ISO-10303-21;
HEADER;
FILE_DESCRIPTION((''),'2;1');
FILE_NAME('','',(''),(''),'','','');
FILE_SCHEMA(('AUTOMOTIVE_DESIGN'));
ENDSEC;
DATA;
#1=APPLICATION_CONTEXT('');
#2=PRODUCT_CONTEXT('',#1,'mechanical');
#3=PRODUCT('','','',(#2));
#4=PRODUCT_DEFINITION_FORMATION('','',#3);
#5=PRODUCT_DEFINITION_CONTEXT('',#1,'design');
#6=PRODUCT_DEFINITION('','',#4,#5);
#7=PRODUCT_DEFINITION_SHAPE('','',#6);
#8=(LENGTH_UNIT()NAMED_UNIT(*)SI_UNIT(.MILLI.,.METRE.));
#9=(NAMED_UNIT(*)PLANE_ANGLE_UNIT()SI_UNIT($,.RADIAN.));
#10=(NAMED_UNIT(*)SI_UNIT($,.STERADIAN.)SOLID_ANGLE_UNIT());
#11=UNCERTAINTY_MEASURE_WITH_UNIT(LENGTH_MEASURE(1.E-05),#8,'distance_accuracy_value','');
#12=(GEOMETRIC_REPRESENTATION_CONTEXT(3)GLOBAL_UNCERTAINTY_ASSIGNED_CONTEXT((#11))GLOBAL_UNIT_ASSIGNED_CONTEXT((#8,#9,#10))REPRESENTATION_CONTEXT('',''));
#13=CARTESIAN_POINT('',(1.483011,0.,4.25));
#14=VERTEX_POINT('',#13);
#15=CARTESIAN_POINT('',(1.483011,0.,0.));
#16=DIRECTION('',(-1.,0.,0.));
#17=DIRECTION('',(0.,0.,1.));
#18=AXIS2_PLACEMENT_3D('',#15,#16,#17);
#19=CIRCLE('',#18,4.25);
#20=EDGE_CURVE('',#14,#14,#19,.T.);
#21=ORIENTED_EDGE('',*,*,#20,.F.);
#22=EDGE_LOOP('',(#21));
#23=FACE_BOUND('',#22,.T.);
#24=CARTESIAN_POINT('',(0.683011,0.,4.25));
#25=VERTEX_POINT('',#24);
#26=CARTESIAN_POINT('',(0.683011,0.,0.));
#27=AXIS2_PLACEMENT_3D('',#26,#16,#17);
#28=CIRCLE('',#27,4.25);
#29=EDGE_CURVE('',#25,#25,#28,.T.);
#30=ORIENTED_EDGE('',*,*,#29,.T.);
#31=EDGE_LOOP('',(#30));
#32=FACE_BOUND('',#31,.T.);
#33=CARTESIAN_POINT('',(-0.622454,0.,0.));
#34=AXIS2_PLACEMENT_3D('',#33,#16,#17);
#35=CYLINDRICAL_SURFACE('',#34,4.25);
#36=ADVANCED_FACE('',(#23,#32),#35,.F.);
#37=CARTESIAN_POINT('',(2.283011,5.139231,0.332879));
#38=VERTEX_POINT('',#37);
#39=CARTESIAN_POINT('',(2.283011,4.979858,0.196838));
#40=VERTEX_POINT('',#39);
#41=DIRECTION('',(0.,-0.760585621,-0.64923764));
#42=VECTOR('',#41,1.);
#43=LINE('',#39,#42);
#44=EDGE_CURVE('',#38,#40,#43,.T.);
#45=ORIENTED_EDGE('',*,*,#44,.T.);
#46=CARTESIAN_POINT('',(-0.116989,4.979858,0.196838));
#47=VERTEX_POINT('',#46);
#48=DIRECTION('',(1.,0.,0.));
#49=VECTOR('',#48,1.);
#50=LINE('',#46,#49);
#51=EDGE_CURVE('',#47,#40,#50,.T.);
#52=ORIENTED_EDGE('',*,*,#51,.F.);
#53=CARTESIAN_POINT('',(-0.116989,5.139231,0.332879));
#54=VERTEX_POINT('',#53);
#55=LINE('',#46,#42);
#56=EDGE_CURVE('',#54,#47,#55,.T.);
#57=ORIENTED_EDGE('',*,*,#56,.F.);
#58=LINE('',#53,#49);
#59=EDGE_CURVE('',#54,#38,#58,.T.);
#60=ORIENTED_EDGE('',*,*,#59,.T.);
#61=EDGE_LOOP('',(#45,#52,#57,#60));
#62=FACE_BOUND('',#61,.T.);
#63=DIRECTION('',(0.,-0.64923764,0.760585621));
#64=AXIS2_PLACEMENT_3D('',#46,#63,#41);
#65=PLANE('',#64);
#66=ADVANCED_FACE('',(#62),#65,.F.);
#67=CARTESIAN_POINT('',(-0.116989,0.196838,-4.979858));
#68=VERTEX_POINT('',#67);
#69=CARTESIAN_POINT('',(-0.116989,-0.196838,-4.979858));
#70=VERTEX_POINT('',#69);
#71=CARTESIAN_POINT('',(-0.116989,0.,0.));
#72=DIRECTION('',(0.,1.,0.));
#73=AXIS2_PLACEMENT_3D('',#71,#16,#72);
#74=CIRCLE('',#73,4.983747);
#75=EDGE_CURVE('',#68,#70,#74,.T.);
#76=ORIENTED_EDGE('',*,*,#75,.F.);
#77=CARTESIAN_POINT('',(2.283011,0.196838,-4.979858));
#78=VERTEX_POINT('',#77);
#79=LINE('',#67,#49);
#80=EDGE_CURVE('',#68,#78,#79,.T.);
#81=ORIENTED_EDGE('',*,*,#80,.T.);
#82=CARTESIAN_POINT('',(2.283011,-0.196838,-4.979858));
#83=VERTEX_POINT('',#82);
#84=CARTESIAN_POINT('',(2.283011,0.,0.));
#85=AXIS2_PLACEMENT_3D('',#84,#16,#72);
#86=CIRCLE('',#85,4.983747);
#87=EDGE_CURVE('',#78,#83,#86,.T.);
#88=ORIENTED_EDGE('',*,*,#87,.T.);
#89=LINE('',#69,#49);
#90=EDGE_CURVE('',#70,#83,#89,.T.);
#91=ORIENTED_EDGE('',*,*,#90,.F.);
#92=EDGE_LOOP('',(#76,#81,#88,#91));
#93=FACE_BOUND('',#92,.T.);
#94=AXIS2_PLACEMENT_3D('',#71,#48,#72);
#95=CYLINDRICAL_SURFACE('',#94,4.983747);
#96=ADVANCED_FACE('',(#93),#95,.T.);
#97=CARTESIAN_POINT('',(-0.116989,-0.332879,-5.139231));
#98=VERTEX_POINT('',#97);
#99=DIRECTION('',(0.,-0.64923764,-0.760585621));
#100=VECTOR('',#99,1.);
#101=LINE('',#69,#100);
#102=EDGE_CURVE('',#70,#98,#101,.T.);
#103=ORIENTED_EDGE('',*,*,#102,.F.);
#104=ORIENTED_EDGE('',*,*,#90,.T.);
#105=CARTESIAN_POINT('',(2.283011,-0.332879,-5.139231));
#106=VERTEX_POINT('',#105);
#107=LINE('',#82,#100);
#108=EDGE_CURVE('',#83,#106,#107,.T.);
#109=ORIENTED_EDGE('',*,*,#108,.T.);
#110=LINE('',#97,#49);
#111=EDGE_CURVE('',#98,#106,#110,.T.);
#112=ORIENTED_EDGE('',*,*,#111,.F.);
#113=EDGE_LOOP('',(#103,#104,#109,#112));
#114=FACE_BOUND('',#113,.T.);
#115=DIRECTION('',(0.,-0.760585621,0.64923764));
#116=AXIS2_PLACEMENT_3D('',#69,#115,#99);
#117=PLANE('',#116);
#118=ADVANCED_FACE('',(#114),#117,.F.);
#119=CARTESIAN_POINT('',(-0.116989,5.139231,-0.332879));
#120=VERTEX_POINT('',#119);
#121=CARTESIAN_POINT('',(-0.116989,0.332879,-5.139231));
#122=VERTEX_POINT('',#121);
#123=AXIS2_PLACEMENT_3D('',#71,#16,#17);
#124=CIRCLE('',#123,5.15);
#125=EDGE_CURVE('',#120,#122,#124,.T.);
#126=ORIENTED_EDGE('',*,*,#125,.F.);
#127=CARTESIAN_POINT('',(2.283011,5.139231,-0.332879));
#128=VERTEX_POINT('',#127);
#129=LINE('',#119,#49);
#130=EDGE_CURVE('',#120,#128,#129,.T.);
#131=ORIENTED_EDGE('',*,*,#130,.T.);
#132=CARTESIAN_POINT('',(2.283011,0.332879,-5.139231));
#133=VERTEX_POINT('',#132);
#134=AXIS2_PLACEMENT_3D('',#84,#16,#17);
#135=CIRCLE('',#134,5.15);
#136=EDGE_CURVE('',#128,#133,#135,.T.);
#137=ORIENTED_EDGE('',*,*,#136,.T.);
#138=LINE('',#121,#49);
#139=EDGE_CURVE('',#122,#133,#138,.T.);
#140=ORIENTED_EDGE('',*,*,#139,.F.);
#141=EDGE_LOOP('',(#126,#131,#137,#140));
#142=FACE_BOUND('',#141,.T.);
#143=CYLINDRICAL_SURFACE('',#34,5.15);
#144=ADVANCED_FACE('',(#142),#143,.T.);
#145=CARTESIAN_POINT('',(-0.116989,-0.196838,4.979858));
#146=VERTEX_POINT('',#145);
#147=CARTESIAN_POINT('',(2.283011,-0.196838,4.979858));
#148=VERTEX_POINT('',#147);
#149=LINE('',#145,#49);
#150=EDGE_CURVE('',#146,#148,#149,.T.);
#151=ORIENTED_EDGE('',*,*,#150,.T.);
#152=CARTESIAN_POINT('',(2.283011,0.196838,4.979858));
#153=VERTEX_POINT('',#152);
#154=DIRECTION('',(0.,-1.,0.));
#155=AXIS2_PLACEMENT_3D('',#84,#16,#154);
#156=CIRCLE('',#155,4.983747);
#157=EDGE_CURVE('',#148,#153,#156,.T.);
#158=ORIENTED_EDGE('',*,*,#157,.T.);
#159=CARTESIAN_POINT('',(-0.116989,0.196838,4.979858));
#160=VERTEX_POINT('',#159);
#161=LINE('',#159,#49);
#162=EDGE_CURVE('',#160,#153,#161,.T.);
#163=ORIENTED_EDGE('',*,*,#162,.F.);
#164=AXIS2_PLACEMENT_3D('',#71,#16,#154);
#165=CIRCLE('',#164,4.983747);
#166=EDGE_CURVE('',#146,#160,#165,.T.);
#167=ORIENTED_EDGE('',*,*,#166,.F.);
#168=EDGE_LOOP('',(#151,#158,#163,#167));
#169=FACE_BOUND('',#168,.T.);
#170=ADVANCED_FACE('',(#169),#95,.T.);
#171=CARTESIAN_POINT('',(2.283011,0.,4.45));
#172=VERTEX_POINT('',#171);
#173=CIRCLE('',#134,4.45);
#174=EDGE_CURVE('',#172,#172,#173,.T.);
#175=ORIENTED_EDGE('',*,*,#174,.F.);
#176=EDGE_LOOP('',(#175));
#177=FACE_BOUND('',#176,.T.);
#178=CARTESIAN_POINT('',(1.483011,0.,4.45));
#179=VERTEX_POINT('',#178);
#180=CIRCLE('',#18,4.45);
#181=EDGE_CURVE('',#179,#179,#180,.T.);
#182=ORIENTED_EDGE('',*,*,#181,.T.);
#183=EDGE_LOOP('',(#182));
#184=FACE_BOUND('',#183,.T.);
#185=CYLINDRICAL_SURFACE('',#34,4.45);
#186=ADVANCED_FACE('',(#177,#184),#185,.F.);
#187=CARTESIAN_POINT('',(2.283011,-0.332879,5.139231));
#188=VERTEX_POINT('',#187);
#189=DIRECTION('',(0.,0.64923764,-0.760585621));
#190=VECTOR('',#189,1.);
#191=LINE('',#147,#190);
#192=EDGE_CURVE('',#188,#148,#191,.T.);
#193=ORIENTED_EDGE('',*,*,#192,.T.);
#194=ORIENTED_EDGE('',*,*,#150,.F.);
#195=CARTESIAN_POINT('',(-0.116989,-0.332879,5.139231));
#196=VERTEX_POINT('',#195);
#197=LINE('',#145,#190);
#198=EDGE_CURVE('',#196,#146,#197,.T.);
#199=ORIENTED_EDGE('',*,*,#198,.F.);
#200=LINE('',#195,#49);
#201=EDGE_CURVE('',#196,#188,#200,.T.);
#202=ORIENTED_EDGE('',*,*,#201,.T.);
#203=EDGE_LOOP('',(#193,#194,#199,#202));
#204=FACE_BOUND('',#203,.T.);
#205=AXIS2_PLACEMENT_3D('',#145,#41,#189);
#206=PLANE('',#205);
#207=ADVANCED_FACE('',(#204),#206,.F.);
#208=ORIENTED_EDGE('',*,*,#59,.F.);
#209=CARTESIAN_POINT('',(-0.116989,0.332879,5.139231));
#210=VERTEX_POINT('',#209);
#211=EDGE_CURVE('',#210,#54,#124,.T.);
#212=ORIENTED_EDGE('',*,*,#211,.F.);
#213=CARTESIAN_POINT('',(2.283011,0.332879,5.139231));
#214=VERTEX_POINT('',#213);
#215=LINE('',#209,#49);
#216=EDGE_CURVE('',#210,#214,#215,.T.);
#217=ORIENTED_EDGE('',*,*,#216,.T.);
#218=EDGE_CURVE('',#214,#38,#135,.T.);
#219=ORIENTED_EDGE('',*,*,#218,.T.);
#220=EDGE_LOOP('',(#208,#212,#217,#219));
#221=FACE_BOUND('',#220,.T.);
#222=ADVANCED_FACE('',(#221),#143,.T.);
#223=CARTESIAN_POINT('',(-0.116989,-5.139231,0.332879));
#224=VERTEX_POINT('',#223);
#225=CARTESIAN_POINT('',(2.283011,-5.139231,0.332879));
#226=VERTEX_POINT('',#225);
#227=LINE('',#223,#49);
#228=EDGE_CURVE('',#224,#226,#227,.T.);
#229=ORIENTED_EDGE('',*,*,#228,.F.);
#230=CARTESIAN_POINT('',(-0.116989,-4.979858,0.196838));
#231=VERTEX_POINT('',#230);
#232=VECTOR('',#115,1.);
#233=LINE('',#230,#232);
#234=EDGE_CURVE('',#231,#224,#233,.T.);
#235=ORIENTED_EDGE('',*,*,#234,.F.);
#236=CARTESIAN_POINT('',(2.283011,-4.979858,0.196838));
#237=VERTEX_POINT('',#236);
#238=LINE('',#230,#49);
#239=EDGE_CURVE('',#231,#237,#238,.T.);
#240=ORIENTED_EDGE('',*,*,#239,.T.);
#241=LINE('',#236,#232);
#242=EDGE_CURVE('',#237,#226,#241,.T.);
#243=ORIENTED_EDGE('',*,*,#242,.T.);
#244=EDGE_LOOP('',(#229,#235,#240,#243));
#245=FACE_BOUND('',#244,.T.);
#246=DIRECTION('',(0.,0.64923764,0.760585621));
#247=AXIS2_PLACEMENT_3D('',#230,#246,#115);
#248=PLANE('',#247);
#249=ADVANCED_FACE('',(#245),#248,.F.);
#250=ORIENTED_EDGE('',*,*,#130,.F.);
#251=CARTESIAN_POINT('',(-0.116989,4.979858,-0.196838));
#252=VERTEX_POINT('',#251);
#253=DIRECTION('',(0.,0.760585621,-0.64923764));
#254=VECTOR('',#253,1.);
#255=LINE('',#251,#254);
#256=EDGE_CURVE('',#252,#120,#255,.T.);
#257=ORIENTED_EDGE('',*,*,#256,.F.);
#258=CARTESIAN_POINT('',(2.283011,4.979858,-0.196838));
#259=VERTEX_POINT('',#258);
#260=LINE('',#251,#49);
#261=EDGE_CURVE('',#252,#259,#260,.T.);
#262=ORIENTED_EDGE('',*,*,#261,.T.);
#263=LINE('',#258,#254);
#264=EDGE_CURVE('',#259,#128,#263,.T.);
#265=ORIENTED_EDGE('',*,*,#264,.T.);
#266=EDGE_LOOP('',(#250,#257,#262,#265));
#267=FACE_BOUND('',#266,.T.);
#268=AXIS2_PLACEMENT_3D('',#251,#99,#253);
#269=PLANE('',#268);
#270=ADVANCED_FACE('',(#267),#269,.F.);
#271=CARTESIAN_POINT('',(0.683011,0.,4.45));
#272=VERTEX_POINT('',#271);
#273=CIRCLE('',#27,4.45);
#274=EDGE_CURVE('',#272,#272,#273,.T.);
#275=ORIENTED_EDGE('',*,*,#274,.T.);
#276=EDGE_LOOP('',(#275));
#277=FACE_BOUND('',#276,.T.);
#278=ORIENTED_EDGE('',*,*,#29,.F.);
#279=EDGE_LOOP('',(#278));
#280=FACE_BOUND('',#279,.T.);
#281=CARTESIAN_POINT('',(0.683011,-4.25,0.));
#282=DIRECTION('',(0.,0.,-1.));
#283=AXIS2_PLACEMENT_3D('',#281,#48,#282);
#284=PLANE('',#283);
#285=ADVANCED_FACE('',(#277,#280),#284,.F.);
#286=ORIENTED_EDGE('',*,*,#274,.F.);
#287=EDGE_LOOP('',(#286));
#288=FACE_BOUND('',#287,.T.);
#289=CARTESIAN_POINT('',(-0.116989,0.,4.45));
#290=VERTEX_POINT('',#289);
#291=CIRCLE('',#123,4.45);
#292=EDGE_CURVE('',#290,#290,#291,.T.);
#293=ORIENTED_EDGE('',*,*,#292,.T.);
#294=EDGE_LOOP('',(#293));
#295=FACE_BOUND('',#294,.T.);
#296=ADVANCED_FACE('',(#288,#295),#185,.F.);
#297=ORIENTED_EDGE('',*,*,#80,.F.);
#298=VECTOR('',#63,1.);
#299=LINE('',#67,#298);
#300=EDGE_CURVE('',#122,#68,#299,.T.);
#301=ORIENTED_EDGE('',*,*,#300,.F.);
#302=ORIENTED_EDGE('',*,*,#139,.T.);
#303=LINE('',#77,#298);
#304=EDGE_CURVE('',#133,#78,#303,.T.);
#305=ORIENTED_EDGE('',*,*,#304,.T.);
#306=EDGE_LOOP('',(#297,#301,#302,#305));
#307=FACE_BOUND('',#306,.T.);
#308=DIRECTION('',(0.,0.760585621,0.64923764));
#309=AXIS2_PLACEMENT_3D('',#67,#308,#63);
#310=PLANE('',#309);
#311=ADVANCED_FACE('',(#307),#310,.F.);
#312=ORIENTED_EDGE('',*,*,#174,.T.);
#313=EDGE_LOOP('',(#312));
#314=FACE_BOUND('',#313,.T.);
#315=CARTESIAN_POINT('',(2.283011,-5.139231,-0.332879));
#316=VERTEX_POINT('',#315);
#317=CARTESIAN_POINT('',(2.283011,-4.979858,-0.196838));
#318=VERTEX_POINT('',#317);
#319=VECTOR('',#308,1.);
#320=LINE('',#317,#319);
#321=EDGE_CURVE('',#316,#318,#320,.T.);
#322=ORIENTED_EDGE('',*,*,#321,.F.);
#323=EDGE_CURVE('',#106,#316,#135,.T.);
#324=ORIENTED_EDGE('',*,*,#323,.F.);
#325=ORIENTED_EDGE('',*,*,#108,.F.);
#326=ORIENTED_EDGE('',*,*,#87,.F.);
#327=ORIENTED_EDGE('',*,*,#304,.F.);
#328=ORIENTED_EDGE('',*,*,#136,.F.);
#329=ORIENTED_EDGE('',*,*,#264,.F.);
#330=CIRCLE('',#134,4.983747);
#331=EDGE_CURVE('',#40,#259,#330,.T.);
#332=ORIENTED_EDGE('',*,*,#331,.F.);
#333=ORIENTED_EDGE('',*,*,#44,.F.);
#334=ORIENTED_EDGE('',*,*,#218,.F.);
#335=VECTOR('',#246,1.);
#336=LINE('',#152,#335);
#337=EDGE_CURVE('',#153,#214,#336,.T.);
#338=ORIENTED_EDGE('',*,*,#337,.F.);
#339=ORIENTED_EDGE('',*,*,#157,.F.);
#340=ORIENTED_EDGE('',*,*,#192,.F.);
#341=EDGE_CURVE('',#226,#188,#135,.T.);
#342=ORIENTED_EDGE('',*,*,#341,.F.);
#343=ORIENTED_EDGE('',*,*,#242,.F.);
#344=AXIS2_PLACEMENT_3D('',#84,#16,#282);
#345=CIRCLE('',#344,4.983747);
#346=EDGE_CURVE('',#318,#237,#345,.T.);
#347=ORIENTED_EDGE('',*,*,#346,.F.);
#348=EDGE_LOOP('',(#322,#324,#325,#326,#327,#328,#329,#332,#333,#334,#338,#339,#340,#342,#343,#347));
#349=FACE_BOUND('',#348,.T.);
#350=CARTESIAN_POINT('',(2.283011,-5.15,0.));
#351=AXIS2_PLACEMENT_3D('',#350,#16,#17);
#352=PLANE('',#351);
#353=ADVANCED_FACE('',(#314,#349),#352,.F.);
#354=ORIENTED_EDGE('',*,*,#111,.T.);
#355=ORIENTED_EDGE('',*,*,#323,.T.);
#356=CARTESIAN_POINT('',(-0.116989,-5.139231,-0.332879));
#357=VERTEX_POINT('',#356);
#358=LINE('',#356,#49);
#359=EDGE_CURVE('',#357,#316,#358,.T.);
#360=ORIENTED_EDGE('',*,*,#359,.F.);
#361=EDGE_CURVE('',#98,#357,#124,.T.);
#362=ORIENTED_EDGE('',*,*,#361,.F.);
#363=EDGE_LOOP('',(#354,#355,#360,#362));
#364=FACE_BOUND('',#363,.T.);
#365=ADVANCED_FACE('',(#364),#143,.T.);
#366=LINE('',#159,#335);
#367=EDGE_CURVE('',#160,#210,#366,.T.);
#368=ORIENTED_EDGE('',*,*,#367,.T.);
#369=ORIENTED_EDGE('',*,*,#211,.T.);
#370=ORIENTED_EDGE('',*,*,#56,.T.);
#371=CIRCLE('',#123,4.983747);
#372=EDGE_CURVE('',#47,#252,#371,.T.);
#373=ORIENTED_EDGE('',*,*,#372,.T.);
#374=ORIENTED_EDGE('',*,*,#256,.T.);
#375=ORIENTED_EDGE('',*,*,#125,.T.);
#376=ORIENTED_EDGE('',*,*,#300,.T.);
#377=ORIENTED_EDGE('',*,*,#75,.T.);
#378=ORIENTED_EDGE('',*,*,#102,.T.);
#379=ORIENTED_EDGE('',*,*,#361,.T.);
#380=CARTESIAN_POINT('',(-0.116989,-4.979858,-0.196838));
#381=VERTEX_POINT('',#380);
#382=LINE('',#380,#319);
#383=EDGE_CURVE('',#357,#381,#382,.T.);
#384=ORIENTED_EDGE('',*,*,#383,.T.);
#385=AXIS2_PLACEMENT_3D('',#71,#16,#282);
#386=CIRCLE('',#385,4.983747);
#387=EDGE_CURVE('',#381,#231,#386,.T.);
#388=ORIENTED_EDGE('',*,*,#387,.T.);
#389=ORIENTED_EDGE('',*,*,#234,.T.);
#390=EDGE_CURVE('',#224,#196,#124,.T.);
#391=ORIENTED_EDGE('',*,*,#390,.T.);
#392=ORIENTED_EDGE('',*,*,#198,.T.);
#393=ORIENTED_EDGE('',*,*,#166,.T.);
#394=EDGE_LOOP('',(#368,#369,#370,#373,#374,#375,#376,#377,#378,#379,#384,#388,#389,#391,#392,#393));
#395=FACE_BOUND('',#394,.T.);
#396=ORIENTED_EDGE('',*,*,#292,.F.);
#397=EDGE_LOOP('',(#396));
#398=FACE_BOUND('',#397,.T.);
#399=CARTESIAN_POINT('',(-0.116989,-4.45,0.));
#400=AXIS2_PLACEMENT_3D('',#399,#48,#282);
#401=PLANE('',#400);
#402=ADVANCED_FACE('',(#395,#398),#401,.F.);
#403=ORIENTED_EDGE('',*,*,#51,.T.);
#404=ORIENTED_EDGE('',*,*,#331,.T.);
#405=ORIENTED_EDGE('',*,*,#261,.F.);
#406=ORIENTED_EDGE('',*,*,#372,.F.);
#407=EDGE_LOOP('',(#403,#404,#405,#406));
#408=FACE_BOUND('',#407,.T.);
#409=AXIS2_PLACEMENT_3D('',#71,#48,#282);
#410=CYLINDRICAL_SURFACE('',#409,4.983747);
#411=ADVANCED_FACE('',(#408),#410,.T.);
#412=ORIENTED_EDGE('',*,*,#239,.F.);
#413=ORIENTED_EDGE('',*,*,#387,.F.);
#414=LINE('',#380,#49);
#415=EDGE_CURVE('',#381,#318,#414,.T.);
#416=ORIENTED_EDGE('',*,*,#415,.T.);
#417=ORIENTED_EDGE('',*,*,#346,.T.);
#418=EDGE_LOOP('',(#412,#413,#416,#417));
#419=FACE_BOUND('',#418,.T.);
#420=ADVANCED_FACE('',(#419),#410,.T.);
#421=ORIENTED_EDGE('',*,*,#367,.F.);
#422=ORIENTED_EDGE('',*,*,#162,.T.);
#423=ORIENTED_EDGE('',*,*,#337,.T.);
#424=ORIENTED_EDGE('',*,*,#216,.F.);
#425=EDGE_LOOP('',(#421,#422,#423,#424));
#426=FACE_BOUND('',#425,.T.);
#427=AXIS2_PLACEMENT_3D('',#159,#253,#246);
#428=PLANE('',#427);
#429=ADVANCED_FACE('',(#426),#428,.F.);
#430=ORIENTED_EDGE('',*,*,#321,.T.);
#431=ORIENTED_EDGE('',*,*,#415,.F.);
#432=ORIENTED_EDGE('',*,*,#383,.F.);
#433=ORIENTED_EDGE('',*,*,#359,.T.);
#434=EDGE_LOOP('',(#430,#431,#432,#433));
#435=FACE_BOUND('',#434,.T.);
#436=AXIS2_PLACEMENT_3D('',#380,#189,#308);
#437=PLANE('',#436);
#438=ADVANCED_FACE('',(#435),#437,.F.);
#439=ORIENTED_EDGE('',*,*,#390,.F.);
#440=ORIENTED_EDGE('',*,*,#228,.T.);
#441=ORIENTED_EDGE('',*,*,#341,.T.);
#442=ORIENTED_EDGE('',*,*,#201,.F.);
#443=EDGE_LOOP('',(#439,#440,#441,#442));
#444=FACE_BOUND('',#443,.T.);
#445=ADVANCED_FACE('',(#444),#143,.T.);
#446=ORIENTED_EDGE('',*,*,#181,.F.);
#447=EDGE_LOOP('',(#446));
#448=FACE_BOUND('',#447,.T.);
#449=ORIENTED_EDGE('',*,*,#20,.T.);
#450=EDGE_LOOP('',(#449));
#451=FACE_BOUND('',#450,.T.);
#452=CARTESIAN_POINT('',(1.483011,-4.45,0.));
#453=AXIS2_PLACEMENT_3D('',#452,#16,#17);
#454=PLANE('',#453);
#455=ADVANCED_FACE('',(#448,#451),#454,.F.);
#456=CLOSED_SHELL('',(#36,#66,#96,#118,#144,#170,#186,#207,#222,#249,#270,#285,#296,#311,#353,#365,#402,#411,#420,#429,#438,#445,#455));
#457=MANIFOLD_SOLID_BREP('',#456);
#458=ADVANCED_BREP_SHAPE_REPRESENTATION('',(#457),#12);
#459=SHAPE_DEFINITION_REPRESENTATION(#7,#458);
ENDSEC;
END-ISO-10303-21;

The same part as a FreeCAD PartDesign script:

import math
import FreeCAD as App
import Part
import Sketcher

V = App.Vector

doc = App.newDocument("Part")
body = doc.addObject("PartDesign::Body", "Body")

# Sketch on XY plane
sketch1 = body.newObject("Sketcher::SketchObject", "Sketch")
sketch1.AttachmentSupport = (doc.getObject("XY_Plane"), [""])
sketch1.MapMode = "FlatFace"
sketch1.addGeometry(Part.LineSegment(V(2.28, -5.15, 0), V(-0.12, -5.15, 0)), False)
sketch1.addGeometry(Part.LineSegment(V(-0.12, -5.15, 0), V(-0.12, -4.45, 0)), False)
sketch1.addGeometry(Part.LineSegment(V(-0.12, -4.45, 0), V(0.68, -4.45, 0)), False)
sketch1.addGeometry(Part.LineSegment(V(0.68, -4.45, 0), V(0.68, -4.25, 0)), False)
sketch1.addGeometry(Part.LineSegment(V(0.68, -4.25, 0), V(1.48, -4.25, 0)), False)
sketch1.addGeometry(Part.LineSegment(V(1.48, -4.25, 0), V(1.48, -4.45, 0)), False)
sketch1.addGeometry(Part.LineSegment(V(1.48, -4.45, 0), V(2.28, -4.45, 0)), False)
sketch1.addGeometry(Part.LineSegment(V(2.28, -4.45, 0), V(2.28, -5.15, 0)), False)
sketch1.addConstraint(Sketcher.Constraint("Coincident", 0, 2, 1, 1))
sketch1.addConstraint(Sketcher.Constraint("Coincident", 1, 2, 2, 1))
sketch1.addConstraint(Sketcher.Constraint("Coincident", 2, 2, 3, 1))
sketch1.addConstraint(Sketcher.Constraint("Coincident", 3, 2, 4, 1))
sketch1.addConstraint(Sketcher.Constraint("Coincident", 4, 2, 5, 1))
sketch1.addConstraint(Sketcher.Constraint("Coincident", 5, 2, 6, 1))
sketch1.addConstraint(Sketcher.Constraint("Coincident", 6, 2, 7, 1))
sketch1.addConstraint(Sketcher.Constraint("Coincident", 7, 2, 0, 1))
sketch1.addConstraint(Sketcher.Constraint("Horizontal", 0))
sketch1.addConstraint(Sketcher.Constraint("Vertical", 1))
sketch1.addConstraint(Sketcher.Constraint("Horizontal", 2))
sketch1.addConstraint(Sketcher.Constraint("Vertical", 3))
sketch1.addConstraint(Sketcher.Constraint("Horizontal", 4))
sketch1.addConstraint(Sketcher.Constraint("Vertical", 5))
sketch1.addConstraint(Sketcher.Constraint("Horizontal", 6))
sketch1.addConstraint(Sketcher.Constraint("Vertical", 7))
sketch1.addConstraint(Sketcher.Constraint("Horizontal", 2, 2, 5, 2))
sketch1.addConstraint(Sketcher.Constraint("Equal", 2, 4))
sketch1.addConstraint(Sketcher.Constraint("Equal", 4, 6))
sketch1.addConstraint(Sketcher.Constraint("DistanceX", 0, 2, 0, 1, 2.4))
sketch1.addConstraint(Sketcher.Constraint("DistanceY", 1, 1, 1, 2, 0.7))
sketch1.addConstraint(Sketcher.Constraint("DistanceY", 3, 1, 3, 2, 0.2))
sketch1.addConstraint(Sketcher.Constraint("DistanceY", 0, 2, -1, 1, 5.15))
sketch1.addConstraint(Sketcher.Constraint("DistanceX", 0, 2, -1, 1, 0.116989))
revolution = body.newObject("PartDesign::Revolution", "Revolution")
revolution.Profile = sketch1
revolution.ReferenceAxis = (sketch1, ["H_Axis"])
revolution.Angle = 360

# Sketch on YZ plane
sketch2 = body.newObject("Sketcher::SketchObject", "Sketch001")
sketch2.AttachmentSupport = (doc.getObject("YZ_Plane"), [""])
sketch2.MapMode = "FlatFace"
sketch2.AttachmentOffset = App.Placement(V(0, 0, 2.283011), App.Rotation())
sketch2.addGeometry(Part.LineSegment(V(-5.14, -0.33, 0), V(-4.98, -0.2, 0)), False)
sketch2.addGeometry(Part.ArcOfCircle(Part.Circle(V(0, 0, 0), V(0, 0, 1), 4.98), math.radians(177.74), math.radians(182.26)), False)
sketch2.addGeometry(Part.LineSegment(V(-4.98, 0.2, 0), V(-5.14, 0.33, 0)), False)
sketch2.addGeometry(Part.ArcOfCircle(Part.Circle(V(0, 0, 0), V(0, 0, 1), 5.15), math.radians(176.29), math.radians(183.71)), False)
sketch2.addConstraint(Sketcher.Constraint("Coincident", 0, 2, 1, 2))
sketch2.addConstraint(Sketcher.Constraint("Coincident", 1, 1, 2, 1))
sketch2.addConstraint(Sketcher.Constraint("Coincident", 2, 2, 3, 1))
sketch2.addConstraint(Sketcher.Constraint("Coincident", 3, 2, 0, 1))
sketch2.addConstraint(Sketcher.Constraint("Coincident", 1, 3, -1, 1))
sketch2.addConstraint(Sketcher.Constraint("Coincident", 3, 3, -1, 1))
sketch2.addConstraint(Sketcher.Constraint("Vertical", 0, 2, 1, 1))
sketch2.addConstraint(Sketcher.Constraint("Vertical", 2, 2, 3, 2))
sketch2.addConstraint(Sketcher.Constraint("Radius", 3, 5.15))
sketch2.addConstraint(Sketcher.Constraint("Radius", 1, 4.983746))
sketch2.addConstraint(Sketcher.Constraint("Distance", 0, 0.20954))
sketch2.addConstraint(Sketcher.Constraint("DistanceX", 2, 2, -1, 1, 5.139231))
pocket1 = body.newObject("PartDesign::Pocket", "Pocket")
pocket1.Profile = sketch2
pocket1.Type = "ThroughAll"
doc.recompute()

polarpattern = body.newObject("PartDesign::PolarPattern", "PolarPattern")
polarpattern.Originals = [pocket1]
polarpattern.Axis = (doc.getObject("X_Axis"), [""])
polarpattern.Angle = 360
polarpattern.Occurrences = 4
body.Tip = polarpattern

doc.recompute()
